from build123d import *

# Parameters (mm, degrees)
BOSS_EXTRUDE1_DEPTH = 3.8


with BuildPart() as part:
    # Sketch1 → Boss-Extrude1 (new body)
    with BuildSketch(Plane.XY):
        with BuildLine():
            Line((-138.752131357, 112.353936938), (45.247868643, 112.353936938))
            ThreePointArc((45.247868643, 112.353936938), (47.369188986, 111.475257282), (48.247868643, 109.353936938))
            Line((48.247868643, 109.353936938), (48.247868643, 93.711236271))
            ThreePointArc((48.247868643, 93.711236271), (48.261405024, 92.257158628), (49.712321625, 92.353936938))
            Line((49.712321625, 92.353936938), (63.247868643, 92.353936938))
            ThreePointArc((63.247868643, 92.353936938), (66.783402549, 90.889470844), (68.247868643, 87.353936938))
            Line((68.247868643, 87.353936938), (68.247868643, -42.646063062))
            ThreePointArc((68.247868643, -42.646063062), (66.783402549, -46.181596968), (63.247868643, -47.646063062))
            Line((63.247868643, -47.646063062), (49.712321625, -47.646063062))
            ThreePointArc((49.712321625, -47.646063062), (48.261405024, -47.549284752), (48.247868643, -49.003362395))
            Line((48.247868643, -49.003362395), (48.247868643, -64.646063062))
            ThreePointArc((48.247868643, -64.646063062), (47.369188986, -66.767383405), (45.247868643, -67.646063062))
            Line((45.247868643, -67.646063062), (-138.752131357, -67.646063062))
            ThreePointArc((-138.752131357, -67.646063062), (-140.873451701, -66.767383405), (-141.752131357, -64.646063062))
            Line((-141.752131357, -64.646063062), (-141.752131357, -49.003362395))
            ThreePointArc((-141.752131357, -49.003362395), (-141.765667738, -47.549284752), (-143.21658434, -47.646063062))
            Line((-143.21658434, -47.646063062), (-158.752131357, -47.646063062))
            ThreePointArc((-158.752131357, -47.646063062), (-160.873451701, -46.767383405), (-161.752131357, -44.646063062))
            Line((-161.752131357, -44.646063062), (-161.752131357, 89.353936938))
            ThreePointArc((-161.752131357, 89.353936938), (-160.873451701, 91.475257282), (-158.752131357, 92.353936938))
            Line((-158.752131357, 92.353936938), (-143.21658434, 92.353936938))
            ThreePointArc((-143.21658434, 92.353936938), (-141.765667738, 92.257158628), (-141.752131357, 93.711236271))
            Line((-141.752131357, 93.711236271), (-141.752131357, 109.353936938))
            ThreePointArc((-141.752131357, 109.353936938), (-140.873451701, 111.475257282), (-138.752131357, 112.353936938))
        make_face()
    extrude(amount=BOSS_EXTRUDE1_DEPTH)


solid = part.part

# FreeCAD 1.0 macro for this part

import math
import FreeCAD as App
import Part
import Sketcher

V = App.Vector

doc = App.newDocument("Part")
params = doc.addObject("Spreadsheet::Sheet", "Params")
for row, (alias, value) in enumerate([
    ("sketch1_radius", "3 mm"),
    ("sketch1_radius2", "1 mm"),
    ("sketch1_radius3", "5 mm"),
    ("sketch1_width", "184 mm"),
    ("sketch1_height", "134 mm"),
    ("pad1_length", "3.8 mm"),
], start=1):
    params.set(f"A{row}", alias)
    params.set(f"B{row}", "=" + value)
    params.setAlias(f"B{row}", alias)

body = doc.addObject("PartDesign::Body", "Body")

# Sketch on XY plane
sketch1 = body.newObject("Sketcher::SketchObject", "Sketch")
sketch1.AttachmentSupport = (doc.getObject("XY_Plane"), [""])
sketch1.MapMode = "FlatFace"
sketch1.addGeometry(Part.LineSegment(V(45.2, 112.4, 0), V(-138.8, 112.4, 0)), False)
sketch1.addGeometry(Part.ArcOfCircle(Part.Circle(V(-138.8, 109.4, 0), V(0, 0, 1), 3), math.radians(90), math.radians(180)), False)
sketch1.addGeometry(Part.LineSegment(V(-141.8, 109.4, 0), V(-141.8, 93.7, 0)), False)
sketch1.addGeometry(Part.ArcOfCircle(Part.Circle(V(-142.4, 93, 0), V(0, 0, 1), 1), math.radians(-140), math.radians(46)), False)
sketch1.addGeometry(Part.LineSegment(V(-143.2, 92.4, 0), V(-158.8, 92.4, 0)), False)
sketch1.addGeometry(Part.ArcOfCircle(Part.Circle(V(-158.8, 89.4, 0), V(0, 0, 1), 3), math.radians(90), math.radians(180)), False)
sketch1.addGeometry(Part.LineSegment(V(-161.8, 89.4, 0), V(-161.8, -44.6, 0)), False)
sketch1.addGeometry(Part.ArcOfCircle(Part.Circle(V(-158.8, -44.6, 0), V(0, 0, 1), 3), math.radians(180), math.radians(270)), False)
sketch1.addGeometry(Part.LineSegment(V(-158.8, -47.6, 0), V(-143.2, -47.6, 0)), False)
sketch1.addGeometry(Part.ArcOfCircle(Part.Circle(V(-142.4, -48.3, 0), V(0, 0, 1), 1), math.radians(-46), math.radians(140)), False)
sketch1.addGeometry(Part.LineSegment(V(-141.8, -49, 0), V(-141.8, -64.6, 0)), False)
sketch1.addGeometry(Part.ArcOfCircle(Part.Circle(V(-138.8, -64.6, 0), V(0, 0, 1), 3), math.radians(180), math.radians(270)), False)
sketch1.addGeometry(Part.LineSegment(V(-138.8, -67.6, 0), V(45.2, -67.6, 0)), False)
sketch1.addGeometry(Part.ArcOfCircle(Part.Circle(V(45.2, -64.6, 0), V(0, 0, 1), 3), math.radians(-90), math.radians(0)), False)
sketch1.addGeometry(Part.LineSegment(V(48.2, -64.6, 0), V(48.2, -49, 0)), False)
sketch1.addGeometry(Part.ArcOfCircle(Part.Circle(V(48.9, -48.3, 0), V(0, 0, 1), 1), math.radians(40), math.radians(226)), False)
sketch1.addGeometry(Part.LineSegment(V(49.7, -47.6, 0), V(63.2, -47.6, 0)), False)
sketch1.addGeometry(Part.ArcOfCircle(Part.Circle(V(63.2, -42.6, 0), V(0, 0, 1), 5), math.radians(-90), math.radians(0)), False)
sketch1.addGeometry(Part.LineSegment(V(68.2, -42.6, 0), V(68.2, 87.4, 0)), False)
sketch1.addGeometry(Part.ArcOfCircle(Part.Circle(V(63.2, 87.4, 0), V(0, 0, 1), 5), math.radians(0), math.radians(90)), False)
sketch1.addGeometry(Part.LineSegment(V(63.2, 92.4, 0), V(49.7, 92.4, 0)), False)
sketch1.addGeometry(Part.ArcOfCircle(Part.Circle(V(48.9, 93, 0), V(0, 0, 1), 1), math.radians(134), math.radians(320)), False)
sketch1.addGeometry(Part.LineSegment(V(48.2, 93.7, 0), V(48.2, 109.4, 0)), False)
sketch1.addGeometry(Part.ArcOfCircle(Part.Circle(V(45.2, 109.4, 0), V(0, 0, 1), 3), math.radians(0), math.radians(90)), False)
sketch1.addConstraint(Sketcher.Constraint("Tangent", 0, 2, 1, 1))
sketch1.addConstraint(Sketcher.Constraint("Tangent", 1, 2, 2, 1))
sketch1.addConstraint(Sketcher.Constraint("Coincident", 2, 2, 3, 2))
sketch1.addConstraint(Sketcher.Constraint("Coincident", 3, 1, 4, 1))
sketch1.addConstraint(Sketcher.Constraint("Tangent", 4, 2, 5, 1))
sketch1.addConstraint(Sketcher.Constraint("Tangent", 5, 2, 6, 1))
sketch1.addConstraint(Sketcher.Constraint("Tangent", 6, 2, 7, 1))
sketch1.addConstraint(Sketcher.Constraint("Tangent", 7, 2, 8, 1))
sketch1.addConstraint(Sketcher.Constraint("Coincident", 8, 2, 9, 2))
sketch1.addConstraint(Sketcher.Constraint("Coincident", 9, 1, 10, 1))
sketch1.addConstraint(Sketcher.Constraint("Tangent", 10, 2, 11, 1))
sketch1.addConstraint(Sketcher.Constraint("Tangent", 11, 2, 12, 1))
sketch1.addConstraint(Sketcher.Constraint("Tangent", 12, 2, 13, 1))
sketch1.addConstraint(Sketcher.Constraint("Tangent", 13, 2, 14, 1))
sketch1.addConstraint(Sketcher.Constraint("Coincident", 14, 2, 15, 2))
sketch1.addConstraint(Sketcher.Constraint("Coincident", 15, 1, 16, 1))
sketch1.addConstraint(Sketcher.Constraint("Tangent", 16, 2, 17, 1))
sketch1.addConstraint(Sketcher.Constraint("Tangent", 17, 2, 18, 1))
sketch1.addConstraint(Sketcher.Constraint("Tangent", 18, 2, 19, 1))
sketch1.addConstraint(Sketcher.Constraint("Tangent", 19, 2, 20, 1))
sketch1.addConstraint(Sketcher.Constraint("Coincident", 20, 2, 21, 2))
sketch1.addConstraint(Sketcher.Constraint("Coincident", 21, 1, 22, 1))
sketch1.addConstraint(Sketcher.Constraint("Tangent", 22, 2, 23, 1))
sketch1.addConstraint(Sketcher.Constraint("Tangent", 23, 2, 0, 1))
sketch1.addConstraint(Sketcher.Constraint("Horizontal", 0))
sketch1.addConstraint(Sketcher.Constraint("Vertical", 2))
sketch1.addConstraint(Sketcher.Constraint("Horizontal", 4))
sketch1.addConstraint(Sketcher.Constraint("Vertical", 6))
sketch1.addConstraint(Sketcher.Constraint("Horizontal", 8))
sketch1.addConstraint(Sketcher.Constraint("Vertical", 10))
sketch1.addConstraint(Sketcher.Constraint("Horizontal", 12))
sketch1.addConstraint(Sketcher.Constraint("Vertical", 14))
sketch1.addConstraint(Sketcher.Constraint("Horizontal", 16))
sketch1.addConstraint(Sketcher.Constraint("Vertical", 18))
sketch1.addConstraint(Sketcher.Constraint("Horizontal", 20))
sketch1.addConstraint(Sketcher.Constraint("Vertical", 22))
sketch1.addConstraint(Sketcher.Constraint("Equal", 1, 5))
sketch1.addConstraint(Sketcher.Constraint("Equal", 5, 7))
sketch1.addConstraint(Sketcher.Constraint("Equal", 3, 9))
sketch1.addConstraint(Sketcher.Constraint("Equal", 7, 11))
sketch1.addConstraint(Sketcher.Constraint("Equal", 11, 13))
sketch1.addConstraint(Sketcher.Constraint("Equal", 9, 15))
sketch1.addConstraint(Sketcher.Constraint("Equal", 17, 19))
sketch1.addConstraint(Sketcher.Constraint("Equal", 15, 21))
sketch1.addConstraint(Sketcher.Constraint("Equal", 13, 23))
sketch1.addConstraint(Sketcher.Constraint("Horizontal", 9, 3, 15, 3))
sketch1.addConstraint(Sketcher.Constraint("Horizontal", 3, 3, 21, 3))
sketch1.addConstraint(Sketcher.Constraint("Horizontal", 9, 1, 14, 2))
sketch1.addConstraint(Sketcher.Constraint("Horizontal", 8, 2, 15, 1))
sketch1.addConstraint(Sketcher.Constraint("Horizontal", 4, 2, 19, 2))
sketch1.addConstraint(Sketcher.Constraint("Horizontal", 2, 2, 21, 1))
sketch1.addConstraint(Sketcher.Constraint("Vertical", 3, 3, 9, 3))
sketch1.addConstraint(Sketcher.Constraint("Vertical", 1, 3, 11, 3))
sketch1.addConstraint(Sketcher.Constraint("Vertical", 15, 3, 21, 3))
sketch1.addConstraint(Sketcher.Constraint("Vertical", 3, 1, 8, 2))
sketch1.addConstraint(Sketcher.Constraint("Equal", 2, 10))
sketch1.addConstraint(Sketcher.Constraint("Radius", 1, 3.0))
sketch1.addConstraint(Sketcher.Constraint("Radius", 3, 1.0))
sketch1.addConstraint(Sketcher.Constraint("Radius", 17, 5.0))
sketch1.addConstraint(Sketcher.Constraint("DistanceX", 0, 2, 0, 1, 184.0))
sketch1.addConstraint(Sketcher.Constraint("DistanceY", 6, 2, 6, 1, 134.0))
sketch1.addConstraint(Sketcher.Constraint("DistanceX", 5, 3, 1, 3, 20.0))
sketch1.addConstraint(Sketcher.Constraint("DistanceY", 5, 3, 1, 3, 20.0))
sketch1.addConstraint(Sketcher.Constraint("DistanceX", 13, 3, 17, 3, 18.0))
sketch1.addConstraint(Sketcher.Constraint("DistanceY", 2, 2, 2, 1, 15.642701))
sketch1.addConstraint(Sketcher.Constraint("DistanceX", 3, 3, 1, 3, 3.693301))
sketch1.addConstraint(Sketcher.Constraint("DistanceX", 1, 3, -1, 1, 138.752131))
sketch1.addConstraint(Sketcher.Constraint("DistanceY", -1, 1, 3, 3, 92.990589))
sketch1.setExpression("Constraints[56]", "Params.sketch1_radius")
sketch1.setExpression("Constraints[57]", "Params.sketch1_radius2")
sketch1.setExpression("Constraints[58]", "Params.sketch1_radius3")
sketch1.setExpression("Constraints[59]", "Params.sketch1_width")
sketch1.setExpression("Constraints[60]", "Params.sketch1_height")
pad1 = body.newObject("PartDesign::Pad", "Pad")
pad1.Profile = sketch1
pad1.setExpression("Length", "Params.pad1_length")

doc.recompute()
